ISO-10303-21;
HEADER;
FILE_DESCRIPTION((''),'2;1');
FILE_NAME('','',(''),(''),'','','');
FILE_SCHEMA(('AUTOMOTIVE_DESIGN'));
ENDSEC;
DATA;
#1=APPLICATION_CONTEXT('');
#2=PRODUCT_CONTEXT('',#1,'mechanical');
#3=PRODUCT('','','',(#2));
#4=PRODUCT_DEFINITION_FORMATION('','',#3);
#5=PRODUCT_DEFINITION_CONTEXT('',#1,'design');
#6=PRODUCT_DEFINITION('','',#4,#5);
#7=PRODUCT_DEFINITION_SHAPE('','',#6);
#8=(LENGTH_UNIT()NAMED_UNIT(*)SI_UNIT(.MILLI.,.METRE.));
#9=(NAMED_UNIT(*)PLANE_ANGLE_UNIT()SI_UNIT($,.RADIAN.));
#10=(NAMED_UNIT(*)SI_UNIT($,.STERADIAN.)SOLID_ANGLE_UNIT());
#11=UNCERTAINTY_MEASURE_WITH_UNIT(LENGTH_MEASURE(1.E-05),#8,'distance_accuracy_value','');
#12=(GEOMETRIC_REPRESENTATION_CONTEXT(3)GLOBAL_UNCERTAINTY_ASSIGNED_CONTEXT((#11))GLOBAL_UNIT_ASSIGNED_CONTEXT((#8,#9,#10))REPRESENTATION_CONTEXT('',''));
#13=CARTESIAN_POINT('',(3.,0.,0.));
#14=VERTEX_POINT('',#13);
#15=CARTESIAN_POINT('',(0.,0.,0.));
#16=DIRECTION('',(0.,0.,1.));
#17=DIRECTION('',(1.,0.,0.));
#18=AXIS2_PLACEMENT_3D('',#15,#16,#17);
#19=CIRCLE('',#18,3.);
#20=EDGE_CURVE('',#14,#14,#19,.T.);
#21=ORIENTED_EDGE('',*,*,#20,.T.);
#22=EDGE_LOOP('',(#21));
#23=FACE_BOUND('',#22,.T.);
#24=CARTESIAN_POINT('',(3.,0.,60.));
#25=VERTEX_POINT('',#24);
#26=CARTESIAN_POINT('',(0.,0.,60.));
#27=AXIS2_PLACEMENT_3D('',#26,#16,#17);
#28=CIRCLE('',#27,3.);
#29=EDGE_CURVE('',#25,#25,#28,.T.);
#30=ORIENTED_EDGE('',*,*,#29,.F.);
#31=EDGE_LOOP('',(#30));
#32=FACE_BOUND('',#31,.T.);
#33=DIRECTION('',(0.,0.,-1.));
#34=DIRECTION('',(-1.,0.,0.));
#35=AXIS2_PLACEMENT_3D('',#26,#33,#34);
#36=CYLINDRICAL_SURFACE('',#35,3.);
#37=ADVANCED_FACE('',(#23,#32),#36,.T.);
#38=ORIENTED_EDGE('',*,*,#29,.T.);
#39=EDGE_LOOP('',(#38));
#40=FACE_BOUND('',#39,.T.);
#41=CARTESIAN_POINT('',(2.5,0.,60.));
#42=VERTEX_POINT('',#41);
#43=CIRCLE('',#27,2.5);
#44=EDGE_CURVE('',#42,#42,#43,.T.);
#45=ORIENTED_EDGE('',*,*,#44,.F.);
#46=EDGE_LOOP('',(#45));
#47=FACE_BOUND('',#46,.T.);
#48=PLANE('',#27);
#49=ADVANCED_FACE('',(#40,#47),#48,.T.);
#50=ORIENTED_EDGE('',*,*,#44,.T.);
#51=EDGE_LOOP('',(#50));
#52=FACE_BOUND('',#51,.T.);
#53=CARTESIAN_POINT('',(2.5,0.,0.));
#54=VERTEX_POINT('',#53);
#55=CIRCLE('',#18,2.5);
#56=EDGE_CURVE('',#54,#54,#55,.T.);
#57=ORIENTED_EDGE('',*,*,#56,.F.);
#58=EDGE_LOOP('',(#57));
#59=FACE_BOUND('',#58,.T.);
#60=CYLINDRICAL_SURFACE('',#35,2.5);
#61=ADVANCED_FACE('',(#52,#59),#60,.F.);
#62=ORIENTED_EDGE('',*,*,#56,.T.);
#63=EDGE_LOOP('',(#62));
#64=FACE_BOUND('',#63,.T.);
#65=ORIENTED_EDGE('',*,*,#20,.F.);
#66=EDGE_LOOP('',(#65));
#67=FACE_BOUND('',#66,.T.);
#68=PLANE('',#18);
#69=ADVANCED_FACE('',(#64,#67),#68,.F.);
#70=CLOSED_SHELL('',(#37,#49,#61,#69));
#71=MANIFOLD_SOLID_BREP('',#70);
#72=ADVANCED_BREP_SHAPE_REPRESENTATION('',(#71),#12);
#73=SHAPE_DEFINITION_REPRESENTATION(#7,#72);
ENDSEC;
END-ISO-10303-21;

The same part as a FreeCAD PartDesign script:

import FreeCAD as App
import Part
import Sketcher
from FreeCAD import Vector
Q = App.Units.Quantity

doc = App.newDocument("Part")
params = doc.addObject("Spreadsheet::Sheet", "Params")
for row, (alias, value) in enumerate([
    ("sketch1_diameter", "6 mm"),
    ("sketch1_diameter2", "5 mm"),
    ("pad1_length", "60 mm"),
], start=1):
    params.set(f"A{row}", alias)
    params.set(f"B{row}", "=" + value)
    params.setAlias(f"B{row}", alias)

body = doc.addObject("PartDesign::Body", "Body")

# Sketch on XY plane
sketch1 = body.newObject("Sketcher::SketchObject", "Sketch")
sketch1.AttachmentSupport = (doc.getObject("XY_Plane"), [""])
sketch1.MapMode = "FlatFace"
sketch1.addGeometry([
    Part.Circle(Vector(0, 0, 0), Vector(0, 0, 1), 3),
    Part.Circle(Vector(0, 0, 0), Vector(0, 0, 1), 2.5),
], False)
sketch1.addConstraint([
    Sketcher.Constraint("Coincident", 0, 3, -1, 1),
    Sketcher.Constraint("Coincident", 1, 3, -1, 1),
    Sketcher.Constraint("Diameter", 0, Q("6 mm")),
    Sketcher.Constraint("Diameter", 1, Q("5 mm")),
])
sketch1.setExpression("Constraints[2]", "Params.sketch1_diameter")
sketch1.setExpression("Constraints[3]", "Params.sketch1_diameter2")
pad1 = body.newObject("PartDesign::Pad", "Pad")
pad1.Profile = sketch1
pad1.setExpression("Length", "Params.pad1_length")

doc.recompute()
